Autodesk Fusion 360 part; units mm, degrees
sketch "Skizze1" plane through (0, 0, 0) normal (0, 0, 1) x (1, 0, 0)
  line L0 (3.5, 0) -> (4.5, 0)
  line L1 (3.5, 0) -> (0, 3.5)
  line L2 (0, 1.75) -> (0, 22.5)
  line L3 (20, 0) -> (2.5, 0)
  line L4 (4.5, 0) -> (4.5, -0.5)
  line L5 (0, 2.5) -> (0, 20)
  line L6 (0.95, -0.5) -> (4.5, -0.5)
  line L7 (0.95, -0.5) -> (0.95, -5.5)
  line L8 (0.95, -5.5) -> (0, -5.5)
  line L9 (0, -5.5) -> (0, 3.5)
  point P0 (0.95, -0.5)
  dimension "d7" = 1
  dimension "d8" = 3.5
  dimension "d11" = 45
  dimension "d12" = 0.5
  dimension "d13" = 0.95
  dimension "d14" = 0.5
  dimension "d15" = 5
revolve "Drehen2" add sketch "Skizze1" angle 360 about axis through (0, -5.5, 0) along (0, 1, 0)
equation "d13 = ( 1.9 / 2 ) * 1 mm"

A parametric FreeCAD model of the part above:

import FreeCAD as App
import Part
import Sketcher

doc = App.newDocument("Part")
body = doc.addObject("PartDesign::Body", "Body")

sketch1 = body.newObject("Sketcher::SketchObject", "Sketch")
sketch1.AttachmentSupport = (doc.getObject("XY_Plane"), [""])
sketch1.MapMode = "FlatFace"
sketch1.addGeometry(Part.LineSegment(App.Vector(4.5, 0, 0), App.Vector(3.5, 0, 0)), False)
sketch1.addGeometry(Part.LineSegment(App.Vector(3.5, 0, 0), App.Vector(0, 3.5, 0)), False)
sketch1.addGeometry(Part.LineSegment(App.Vector(0, 3.5, 0), App.Vector(0, -5.5, 0)), False)
sketch1.addGeometry(Part.LineSegment(App.Vector(0, -5.5, 0), App.Vector(0.9, -5.5, 0)), False)
sketch1.addGeometry(Part.LineSegment(App.Vector(0.9, -5.5, 0), App.Vector(0.9, -0.5, 0)), False)
sketch1.addGeometry(Part.LineSegment(App.Vector(0.9, -0.5, 0), App.Vector(4.5, -0.5, 0)), False)
sketch1.addGeometry(Part.LineSegment(App.Vector(4.5, -0.5, 0), App.Vector(4.5, 0, 0)), False)
sketch1.addConstraint(Sketcher.Constraint("Coincident", 0, 2, 1, 1))
sketch1.addConstraint(Sketcher.Constraint("Coincident", 1, 2, 2, 1))
sketch1.addConstraint(Sketcher.Constraint("Coincident", 2, 2, 3, 1))
sketch1.addConstraint(Sketcher.Constraint("Coincident", 3, 2, 4, 1))
sketch1.addConstraint(Sketcher.Constraint("Coincident", 4, 2, 5, 1))
sketch1.addConstraint(Sketcher.Constraint("Coincident", 5, 2, 6, 1))
sketch1.addConstraint(Sketcher.Constraint("Coincident", 6, 2, 0, 1))
sketch1.addConstraint(Sketcher.Constraint("Horizontal", 0))
sketch1.addConstraint(Sketcher.Constraint("Vertical", 2))
sketch1.addConstraint(Sketcher.Constraint("Horizontal", 3))
sketch1.addConstraint(Sketcher.Constraint("Vertical", 4))
sketch1.addConstraint(Sketcher.Constraint("Horizontal", 5))
sketch1.addConstraint(Sketcher.Constraint("Vertical", 6))
sketch1.addConstraint(Sketcher.Constraint("PointOnObject", 0, 2, -1))
sketch1.addConstraint(Sketcher.Constraint("PointOnObject", 1, 2, -2))
sketch1.addConstraint(Sketcher.Constraint("DistanceX", 0, 2, 0, 1, 1.0))
sketch1.addConstraint(Sketcher.Constraint("DistanceY", 4, 1, 4, 2, 5.0))
sketch1.addConstraint(Sketcher.Constraint("DistanceY", 6, 1, 6, 2, 0.5))
sketch1.addConstraint(Sketcher.Constraint("DistanceX", 3, 1, 3, 2, 0.95))
sketch1.addConstraint(Sketcher.Constraint("DistanceX", -1, 1, 0, 2, 3.5))
sketch1.addConstraint(Sketcher.Constraint("DistanceY", -1, 1, 1, 2, 3.5))
revolution = body.newObject("PartDesign::Revolution", "Revolution")
revolution.Profile = sketch1
revolution.ReferenceAxis = (sketch1, ["V_Axis"])
revolution.Angle = 360

doc.recompute()
